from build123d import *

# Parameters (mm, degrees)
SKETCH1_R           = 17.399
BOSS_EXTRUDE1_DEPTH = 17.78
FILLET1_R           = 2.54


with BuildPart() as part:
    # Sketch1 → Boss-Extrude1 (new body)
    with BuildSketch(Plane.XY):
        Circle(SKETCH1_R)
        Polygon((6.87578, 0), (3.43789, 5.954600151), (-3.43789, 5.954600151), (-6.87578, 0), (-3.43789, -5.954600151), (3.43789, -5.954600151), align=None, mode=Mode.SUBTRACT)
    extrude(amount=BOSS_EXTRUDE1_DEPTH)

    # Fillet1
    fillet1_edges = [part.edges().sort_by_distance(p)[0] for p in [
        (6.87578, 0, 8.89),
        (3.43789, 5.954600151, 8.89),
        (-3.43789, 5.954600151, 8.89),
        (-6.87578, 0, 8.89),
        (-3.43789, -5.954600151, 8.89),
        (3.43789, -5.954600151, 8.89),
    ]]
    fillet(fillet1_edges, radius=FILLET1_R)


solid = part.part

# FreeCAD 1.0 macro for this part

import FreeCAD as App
import Part
import Sketcher
Q = App.Units.Quantity


def edges_at(feature, points):
    """Names of the edges that pass closest to the given points."""
    edges = feature.Shape.Edges
    near = lambda p: min(range(len(edges)), key=lambda i: edges[i].distToShape(Part.Vertex(*p))[0])
    return sorted({f"Edge{near(p) + 1}" for p in points})


def add_polygon(sketch, points):
    """Adds a closed chain of lines whose ends are joined by coincident constraints."""
    first, n = sketch.GeometryCount, len(points)
    for a, b in zip(points, points[1:] + points[:1]):
        sketch.addGeometry(Part.LineSegment(App.Vector(*a, 0), App.Vector(*b, 0)), False)
    for i in range(n):
        sketch.addConstraint(Sketcher.Constraint("Coincident", first + i, 2, first + (i + 1) % n, 1))

doc = App.newDocument("Part")
body = doc.addObject("PartDesign::Body", "Body")

# Sketch on XY plane
sketch1 = body.newObject("Sketcher::SketchObject", "Sketch")
sketch1.AttachmentSupport = (doc.getObject("XY_Plane"), [""])
sketch1.MapMode = "FlatFace"
sketch1.addGeometry(Part.Circle(App.Vector(0, 0, 0), App.Vector(0, 0, 1), 17), False)  # 0
add_polygon(sketch1, [(3, 6), (7, 0), (3, -6), (-3, -6), (-7, 0), (-3, 6)])  # lines 1-6
sketch1.addConstraint(Sketcher.Constraint("Horizontal", 3))
sketch1.addConstraint(Sketcher.Constraint("Horizontal", 6))
sketch1.addConstraint(Sketcher.Constraint("Coincident", 0, 3, -1, 1))
sketch1.addConstraint(Sketcher.Constraint("Symmetric", 1, 2, 4, 2, -1, 1))
sketch1.addConstraint(Sketcher.Constraint("Symmetric", 2, 2, 5, 2, -1, 1))
sketch1.addConstraint(Sketcher.Constraint("PointOnObject", 1, 2, -1))
sketch1.addConstraint(Sketcher.Constraint("Parallel", 1, 4))
sketch1.addConstraint(Sketcher.Constraint("Vertical", 3, 2, 5, 2))
sketch1.addConstraint(Sketcher.Constraint("Diameter", 0, Q("1.37 in")))
sketch1.addConstraint(Sketcher.Constraint("Angle", 1, Q("-60 deg")))
sketch1.addConstraint(Sketcher.Constraint("DistanceX", 3, 2, 3, 1, Q("0.2707 in")))
sketch1.addConstraint(Sketcher.Constraint("Distance", 1, Q("0.2707 in")))
pad1 = body.newObject("PartDesign::Pad", "Pad")
pad1.Profile = sketch1
pad1.Length = Q("0.7 in")
doc.recompute()

fillet = body.newObject("PartDesign::Fillet", "Fillet")
fillet.Base = (pad1, edges_at(pad1, [
    (6.876, 0, 8.89),
    (3.438, 5.955, 8.89),
    (-3.438, 5.955, 8.89),
    (-6.876, 0, 8.89),
    (-3.438, -5.955, 8.89),
    (3.438, -5.955, 8.89),
]))
fillet.Radius = Q("0.1 in")

doc.recompute()
